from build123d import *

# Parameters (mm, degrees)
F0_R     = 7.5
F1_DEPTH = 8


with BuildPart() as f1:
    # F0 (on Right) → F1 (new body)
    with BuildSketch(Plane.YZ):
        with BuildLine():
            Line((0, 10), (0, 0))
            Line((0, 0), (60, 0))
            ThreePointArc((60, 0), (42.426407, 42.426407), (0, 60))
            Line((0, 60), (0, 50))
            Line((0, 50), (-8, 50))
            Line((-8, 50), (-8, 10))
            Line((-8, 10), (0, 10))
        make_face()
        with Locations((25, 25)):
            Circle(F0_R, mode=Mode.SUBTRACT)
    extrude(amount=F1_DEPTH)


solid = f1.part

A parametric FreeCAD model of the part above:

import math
import FreeCAD as App
import Part
import Sketcher
Q = App.Units.Quantity

doc = App.newDocument("Part")
body = doc.addObject("PartDesign::Body", "Body")

# Sketch on YZ plane
sketch1 = body.newObject("Sketcher::SketchObject", "Sketch")
sketch1.AttachmentSupport = (doc.getObject("YZ_Plane"), [""])
sketch1.MapMode = "FlatFace"
sketch1.addGeometry([
    Part.LineSegment(App.Vector(0, 10, 0), App.Vector(0, 0, 0)),  # 0
    Part.LineSegment(App.Vector(0, 0, 0), App.Vector(60, 0, 0)),  # 1
    Part.ArcOfCircle(Part.Circle(App.Vector(0, 0, 0), App.Vector(0, 0, 1), 60), math.radians(0), math.radians(90)),  # 2
    Part.LineSegment(App.Vector(0, 60, 0), App.Vector(0, 50, 0)),  # 3
    Part.LineSegment(App.Vector(0, 50, 0), App.Vector(-8, 50, 0)),  # 4
    Part.LineSegment(App.Vector(-8, 50, 0), App.Vector(-8, 10, 0)),  # 5
    Part.LineSegment(App.Vector(-8, 10, 0), App.Vector(0, 10, 0)),  # 6
    Part.Circle(App.Vector(25, 25, 0), App.Vector(0, 0, 1), 8),  # 7
], False)
sketch1.addConstraint([
    Sketcher.Constraint("Coincident", 0, 2, 1, 1),
    Sketcher.Constraint("Coincident", 1, 2, 2, 1),
    Sketcher.Constraint("Coincident", 2, 2, 3, 1),
    Sketcher.Constraint("Coincident", 3, 2, 4, 1),
    Sketcher.Constraint("Coincident", 4, 2, 5, 1),
    Sketcher.Constraint("Coincident", 5, 2, 6, 1),
    Sketcher.Constraint("Coincident", 6, 2, 0, 1),
    Sketcher.Constraint("Vertical", 0),
    Sketcher.Constraint("Horizontal", 1),
    Sketcher.Constraint("Vertical", 3),
    Sketcher.Constraint("Horizontal", 4),
    Sketcher.Constraint("Vertical", 5),
    Sketcher.Constraint("Horizontal", 6),
    Sketcher.Constraint("Coincident", 2, 3, -1, 1),
    Sketcher.Constraint("Coincident", 0, 2, -1, 1),
    Sketcher.Constraint("PointOnObject", 2, 2, -2),
    Sketcher.Constraint("Equal", 0, 3),
    Sketcher.Constraint("Diameter", 7, Q("15 mm")),
    Sketcher.Constraint("Radius", 2, Q("60 mm")),
    Sketcher.Constraint("DistanceX", 4, 2, 4, 1, Q("8 mm")),
    Sketcher.Constraint("DistanceY", 0, 2, 0, 1, Q("10 mm")),
    Sketcher.Constraint("DistanceX", -1, 1, 7, 3, Q("25 mm")),
    Sketcher.Constraint("DistanceY", -1, 1, 7, 3, Q("25 mm")),
])
pad1 = body.newObject("PartDesign::Pad", "Pad")
pad1.Profile = sketch1
pad1.Length = 8

doc.recompute()
